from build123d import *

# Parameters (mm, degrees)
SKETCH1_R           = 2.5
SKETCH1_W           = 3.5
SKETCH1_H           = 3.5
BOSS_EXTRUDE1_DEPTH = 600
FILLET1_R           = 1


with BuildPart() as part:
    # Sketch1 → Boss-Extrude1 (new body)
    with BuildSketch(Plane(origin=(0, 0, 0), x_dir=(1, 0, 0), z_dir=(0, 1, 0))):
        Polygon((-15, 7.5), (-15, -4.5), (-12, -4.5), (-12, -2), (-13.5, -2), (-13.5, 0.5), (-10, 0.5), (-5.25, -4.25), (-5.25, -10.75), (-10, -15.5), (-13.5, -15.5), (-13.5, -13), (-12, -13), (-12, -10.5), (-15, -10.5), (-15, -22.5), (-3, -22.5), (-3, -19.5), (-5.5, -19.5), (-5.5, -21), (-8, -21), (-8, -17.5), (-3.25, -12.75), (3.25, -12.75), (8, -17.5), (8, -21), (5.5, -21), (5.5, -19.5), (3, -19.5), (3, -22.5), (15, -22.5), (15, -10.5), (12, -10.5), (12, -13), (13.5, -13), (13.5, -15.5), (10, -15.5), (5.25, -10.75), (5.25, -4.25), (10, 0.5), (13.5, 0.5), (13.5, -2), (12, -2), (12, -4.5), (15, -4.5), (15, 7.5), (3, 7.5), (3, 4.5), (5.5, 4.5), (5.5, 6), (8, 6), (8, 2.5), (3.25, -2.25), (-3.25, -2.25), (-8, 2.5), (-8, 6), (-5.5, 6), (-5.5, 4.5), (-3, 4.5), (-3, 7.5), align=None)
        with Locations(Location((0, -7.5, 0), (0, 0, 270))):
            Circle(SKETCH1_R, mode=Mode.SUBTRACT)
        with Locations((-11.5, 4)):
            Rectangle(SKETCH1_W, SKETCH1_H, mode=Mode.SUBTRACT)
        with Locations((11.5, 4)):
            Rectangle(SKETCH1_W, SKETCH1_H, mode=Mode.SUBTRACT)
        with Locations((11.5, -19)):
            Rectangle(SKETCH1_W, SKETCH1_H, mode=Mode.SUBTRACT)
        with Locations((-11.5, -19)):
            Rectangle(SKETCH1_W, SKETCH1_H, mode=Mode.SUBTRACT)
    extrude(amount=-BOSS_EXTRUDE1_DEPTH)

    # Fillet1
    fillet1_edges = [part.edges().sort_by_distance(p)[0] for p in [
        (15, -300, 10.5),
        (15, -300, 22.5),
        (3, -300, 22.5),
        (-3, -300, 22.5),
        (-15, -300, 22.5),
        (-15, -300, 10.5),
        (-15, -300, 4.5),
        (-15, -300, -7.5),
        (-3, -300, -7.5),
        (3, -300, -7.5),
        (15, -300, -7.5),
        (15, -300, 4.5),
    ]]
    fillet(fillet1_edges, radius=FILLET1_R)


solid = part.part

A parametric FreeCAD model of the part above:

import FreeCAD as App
import Part
import Sketcher
from FreeCAD import Vector


def edges_at(feature, points):
    """Names of the edges that pass closest to the given points."""
    edges = feature.Shape.Edges
    near = lambda p: min(range(len(edges)), key=lambda i: edges[i].distToShape(Part.Vertex(*p))[0])
    return sorted({f"Edge{near(p) + 1}" for p in points})

doc = App.newDocument("Part")
body = doc.addObject("PartDesign::Body", "Body")

# Sketch on XZ plane
sketch1 = body.newObject("Sketcher::SketchObject", "Sketch")
sketch1.AttachmentSupport = (doc.getObject("XZ_Plane"), [""])
sketch1.MapMode = "FlatFace"
sketch1.addGeometry([
    Part.LineSegment(Vector(-15, -7.5, 0), Vector(-15, 4.5, 0)),  # 0
    Part.LineSegment(Vector(-15, 4.5, 0), Vector(-12, 4.5, 0)),  # 1
    Part.LineSegment(Vector(-12, 4.5, 0), Vector(-12, 2, 0)),  # 2
    Part.LineSegment(Vector(-12, 2, 0), Vector(-13.5, 2, 0)),  # 3
    Part.LineSegment(Vector(-13.5, 2, 0), Vector(-13.5, -0.5, 0)),  # 4
    Part.LineSegment(Vector(-13.5, -0.5, 0), Vector(-10, -0.5, 0)),  # 5
    Part.LineSegment(Vector(-10, -0.5, 0), Vector(-5.2, 4.2, 0)),  # 6
    Part.LineSegment(Vector(-5.2, 4.2, 0), Vector(-5.2, 10.8, 0)),  # 7
    Part.LineSegment(Vector(-5.2, 10.8, 0), Vector(-10, 15.5, 0)),  # 8
    Part.LineSegment(Vector(-10, 15.5, 0), Vector(-13.5, 15.5, 0)),  # 9
    Part.LineSegment(Vector(-13.5, 15.5, 0), Vector(-13.5, 13, 0)),  # 10
    Part.LineSegment(Vector(-13.5, 13, 0), Vector(-12, 13, 0)),  # 11
    Part.LineSegment(Vector(-12, 13, 0), Vector(-12, 10.5, 0)),  # 12
    Part.LineSegment(Vector(-12, 10.5, 0), Vector(-15, 10.5, 0)),  # 13
    Part.LineSegment(Vector(-15, 10.5, 0), Vector(-15, 22.5, 0)),  # 14
    Part.LineSegment(Vector(-15, 22.5, 0), Vector(-3, 22.5, 0)),  # 15
    Part.LineSegment(Vector(-3, 22.5, 0), Vector(-3, 19.5, 0)),  # 16
    Part.LineSegment(Vector(-3, 19.5, 0), Vector(-5.5, 19.5, 0)),  # 17
    Part.LineSegment(Vector(-5.5, 19.5, 0), Vector(-5.5, 21, 0)),  # 18
    Part.LineSegment(Vector(-5.5, 21, 0), Vector(-8, 21, 0)),  # 19
    Part.LineSegment(Vector(-8, 21, 0), Vector(-8, 17.5, 0)),  # 20
    Part.LineSegment(Vector(-8, 17.5, 0), Vector(-3.2, 12.8, 0)),  # 21
    Part.LineSegment(Vector(-3.2, 12.8, 0), Vector(3.2, 12.8, 0)),  # 22
    Part.LineSegment(Vector(3.2, 12.8, 0), Vector(8, 17.5, 0)),  # 23
    Part.LineSegment(Vector(8, 17.5, 0), Vector(8, 21, 0)),  # 24
    Part.LineSegment(Vector(8, 21, 0), Vector(5.5, 21, 0)),  # 25
    Part.LineSegment(Vector(5.5, 21, 0), Vector(5.5, 19.5, 0)),  # 26
    Part.LineSegment(Vector(5.5, 19.5, 0), Vector(3, 19.5, 0)),  # 27
    Part.LineSegment(Vector(3, 19.5, 0), Vector(3, 22.5, 0)),  # 28
    Part.LineSegment(Vector(3, 22.5, 0), Vector(15, 22.5, 0)),  # 29
    Part.LineSegment(Vector(15, 22.5, 0), Vector(15, 10.5, 0)),  # 30
    Part.LineSegment(Vector(15, 10.5, 0), Vector(12, 10.5, 0)),  # 31
    Part.LineSegment(Vector(12, 10.5, 0), Vector(12, 13, 0)),  # 32
    Part.LineSegment(Vector(12, 13, 0), Vector(13.5, 13, 0)),  # 33
    Part.LineSegment(Vector(13.5, 13, 0), Vector(13.5, 15.5, 0)),  # 34
    Part.LineSegment(Vector(13.5, 15.5, 0), Vector(10, 15.5, 0)),  # 35
    Part.LineSegment(Vector(10, 15.5, 0), Vector(5.2, 10.8, 0)),  # 36
    Part.LineSegment(Vector(5.2, 10.8, 0), Vector(5.2, 4.2, 0)),  # 37
    Part.LineSegment(Vector(5.2, 4.2, 0), Vector(10, -0.5, 0)),  # 38
    Part.LineSegment(Vector(10, -0.5, 0), Vector(13.5, -0.5, 0)),  # 39
    Part.LineSegment(Vector(13.5, -0.5, 0), Vector(13.5, 2, 0)),  # 40
    Part.LineSegment(Vector(13.5, 2, 0), Vector(12, 2, 0)),  # 41
    Part.LineSegment(Vector(12, 2, 0), Vector(12, 4.5, 0)),  # 42
    Part.LineSegment(Vector(12, 4.5, 0), Vector(15, 4.5, 0)),  # 43
    Part.LineSegment(Vector(15, 4.5, 0), Vector(15, -7.5, 0)),  # 44
    Part.LineSegment(Vector(15, -7.5, 0), Vector(3, -7.5, 0)),  # 45
    Part.LineSegment(Vector(3, -7.5, 0), Vector(3, -4.5, 0)),  # 46
    Part.LineSegment(Vector(3, -4.5, 0), Vector(5.5, -4.5, 0)),  # 47
    Part.LineSegment(Vector(5.5, -4.5, 0), Vector(5.5, -6, 0)),  # 48
    Part.LineSegment(Vector(5.5, -6, 0), Vector(8, -6, 0)),  # 49
    Part.LineSegment(Vector(8, -6, 0), Vector(8, -2.5, 0)),  # 50
    Part.LineSegment(Vector(8, -2.5, 0), Vector(3.2, 2.2, 0)),  # 51
    Part.LineSegment(Vector(3.2, 2.2, 0), Vector(-3.2, 2.2, 0)),  # 52
    Part.LineSegment(Vector(-3.2, 2.2, 0), Vector(-8, -2.5, 0)),  # 53
    Part.LineSegment(Vector(-8, -2.5, 0), Vector(-8, -6, 0)),  # 54
    Part.LineSegment(Vector(-8, -6, 0), Vector(-5.5, -6, 0)),  # 55
    Part.LineSegment(Vector(-5.5, -6, 0), Vector(-5.5, -4.5, 0)),  # 56
    Part.LineSegment(Vector(-5.5, -4.5, 0), Vector(-3, -4.5, 0)),  # 57
    Part.LineSegment(Vector(-3, -4.5, 0), Vector(-3, -7.5, 0)),  # 58
    Part.LineSegment(Vector(-3, -7.5, 0), Vector(-15, -7.5, 0)),  # 59
    Part.LineSegment(Vector(-9.8, 20.8, 0), Vector(-13.2, 20.8, 0)),  # 60
    Part.LineSegment(Vector(-13.2, 20.8, 0), Vector(-13.2, 17.2, 0)),  # 61
    Part.LineSegment(Vector(-13.2, 17.2, 0), Vector(-9.8, 17.2, 0)),  # 62
    Part.LineSegment(Vector(-9.8, 17.2, 0), Vector(-9.8, 20.8, 0)),  # 63
    Part.LineSegment(Vector(13.2, 20.8, 0), Vector(9.8, 20.8, 0)),  # 64
    Part.LineSegment(Vector(9.8, 20.8, 0), Vector(9.8, 17.2, 0)),  # 65
    Part.LineSegment(Vector(9.8, 17.2, 0), Vector(13.2, 17.2, 0)),  # 66
    Part.LineSegment(Vector(13.2, 17.2, 0), Vector(13.2, 20.8, 0)),  # 67
    Part.LineSegment(Vector(-9.8, -2.2, 0), Vector(-13.2, -2.2, 0)),  # 68
    Part.LineSegment(Vector(-13.2, -2.2, 0), Vector(-13.2, -5.8, 0)),  # 69
    Part.LineSegment(Vector(-13.2, -5.8, 0), Vector(-9.8, -5.8, 0)),  # 70
    Part.LineSegment(Vector(-9.8, -5.8, 0), Vector(-9.8, -2.2, 0)),  # 71
    Part.Circle(Vector(0, 7.5, 0), Vector(0, 0, 1), 2.5),  # 72
    Part.LineSegment(Vector(13.2, -2.2, 0), Vector(9.8, -2.2, 0)),  # 73
    Part.LineSegment(Vector(9.8, -2.2, 0), Vector(9.8, -5.8, 0)),  # 74
    Part.LineSegment(Vector(9.8, -5.8, 0), Vector(13.2, -5.8, 0)),  # 75
    Part.LineSegment(Vector(13.2, -5.8, 0), Vector(13.2, -2.2, 0)),  # 76
], False)
sketch1.addConstraint([
    Sketcher.Constraint("Coincident", 0, 2, 1, 1),
    Sketcher.Constraint("Coincident", 1, 2, 2, 1),
    Sketcher.Constraint("Coincident", 2, 2, 3, 1),
    Sketcher.Constraint("Coincident", 3, 2, 4, 1),
    Sketcher.Constraint("Coincident", 4, 2, 5, 1),
    Sketcher.Constraint("Coincident", 5, 2, 6, 1),
    Sketcher.Constraint("Coincident", 6, 2, 7, 1),
    Sketcher.Constraint("Coincident", 7, 2, 8, 1),
    Sketcher.Constraint("Coincident", 8, 2, 9, 1),
    Sketcher.Constraint("Coincident", 9, 2, 10, 1),
    Sketcher.Constraint("Coincident", 10, 2, 11, 1),
    Sketcher.Constraint("Coincident", 11, 2, 12, 1),
    Sketcher.Constraint("Coincident", 12, 2, 13, 1),
    Sketcher.Constraint("Coincident", 13, 2, 14, 1),
    Sketcher.Constraint("Coincident", 14, 2, 15, 1),
    Sketcher.Constraint("Coincident", 15, 2, 16, 1),
    Sketcher.Constraint("Coincident", 16, 2, 17, 1),
    Sketcher.Constraint("Coincident", 17, 2, 18, 1),
    Sketcher.Constraint("Coincident", 18, 2, 19, 1),
    Sketcher.Constraint("Coincident", 19, 2, 20, 1),
    Sketcher.Constraint("Coincident", 20, 2, 21, 1),
    Sketcher.Constraint("Coincident", 21, 2, 22, 1),
    Sketcher.Constraint("Coincident", 22, 2, 23, 1),
    Sketcher.Constraint("Coincident", 23, 2, 24, 1),
    Sketcher.Constraint("Coincident", 24, 2, 25, 1),
    Sketcher.Constraint("Coincident", 25, 2, 26, 1),
    Sketcher.Constraint("Coincident", 26, 2, 27, 1),
    Sketcher.Constraint("Coincident", 27, 2, 28, 1),
    Sketcher.Constraint("Coincident", 28, 2, 29, 1),
    Sketcher.Constraint("Coincident", 29, 2, 30, 1),
    Sketcher.Constraint("Coincident", 30, 2, 31, 1),
    Sketcher.Constraint("Coincident", 31, 2, 32, 1),
    Sketcher.Constraint("Coincident", 32, 2, 33, 1),
    Sketcher.Constraint("Coincident", 33, 2, 34, 1),
    Sketcher.Constraint("Coincident", 34, 2, 35, 1),
    Sketcher.Constraint("Coincident", 35, 2, 36, 1),
    Sketcher.Constraint("Coincident", 36, 2, 37, 1),
    Sketcher.Constraint("Coincident", 37, 2, 38, 1),
    Sketcher.Constraint("Coincident", 38, 2, 39, 1),
    Sketcher.Constraint("Coincident", 39, 2, 40, 1),
    Sketcher.Constraint("Coincident", 40, 2, 41, 1),
    Sketcher.Constraint("Coincident", 41, 2, 42, 1),
    Sketcher.Constraint("Coincident", 42, 2, 43, 1),
    Sketcher.Constraint("Coincident", 43, 2, 44, 1),
    Sketcher.Constraint("Coincident", 44, 2, 45, 1),
    Sketcher.Constraint("Coincident", 45, 2, 46, 1),
    Sketcher.Constraint("Coincident", 46, 2, 47, 1),
    Sketcher.Constraint("Coincident", 47, 2, 48, 1),
    Sketcher.Constraint("Coincident", 48, 2, 49, 1),
    Sketcher.Constraint("Coincident", 49, 2, 50, 1),
    Sketcher.Constraint("Coincident", 50, 2, 51, 1),
    Sketcher.Constraint("Coincident", 51, 2, 52, 1),
    Sketcher.Constraint("Coincident", 52, 2, 53, 1),
    Sketcher.Constraint("Coincident", 53, 2, 54, 1),
    Sketcher.Constraint("Coincident", 54, 2, 55, 1),
    Sketcher.Constraint("Coincident", 55, 2, 56, 1),
    Sketcher.Constraint("Coincident", 56, 2, 57, 1),
    Sketcher.Constraint("Coincident", 57, 2, 58, 1),
    Sketcher.Constraint("Coincident", 58, 2, 59, 1),
    Sketcher.Constraint("Coincident", 59, 2, 0, 1),
    Sketcher.Constraint("Coincident", 60, 2, 61, 1),
    Sketcher.Constraint("Coincident", 61, 2, 62, 1),
    Sketcher.Constraint("Coincident", 62, 2, 63, 1),
    Sketcher.Constraint("Coincident", 63, 2, 60, 1),
    Sketcher.Constraint("Coincident", 64, 2, 65, 1),
    Sketcher.Constraint("Coincident", 65, 2, 66, 1),
    Sketcher.Constraint("Coincident", 66, 2, 67, 1),
    Sketcher.Constraint("Coincident", 67, 2, 64, 1),
    Sketcher.Constraint("Coincident", 68, 2, 69, 1),
    Sketcher.Constraint("Coincident", 69, 2, 70, 1),
    Sketcher.Constraint("Coincident", 70, 2, 71, 1),
    Sketcher.Constraint("Coincident", 71, 2, 68, 1),
    Sketcher.Constraint("Coincident", 73, 2, 74, 1),
    Sketcher.Constraint("Coincident", 74, 2, 75, 1),
    Sketcher.Constraint("Coincident", 75, 2, 76, 1),
    Sketcher.Constraint("Coincident", 76, 2, 73, 1),
    Sketcher.Constraint("Vertical", 0),
    Sketcher.Constraint("Horizontal", 1),
    Sketcher.Constraint("Vertical", 2),
    Sketcher.Constraint("Horizontal", 3),
    Sketcher.Constraint("Vertical", 4),
    Sketcher.Constraint("Horizontal", 5),
    Sketcher.Constraint("Vertical", 7),
    Sketcher.Constraint("Horizontal", 9),
    Sketcher.Constraint("Vertical", 10),
    Sketcher.Constraint("Horizontal", 11),
    Sketcher.Constraint("Vertical", 12),
    Sketcher.Constraint("Horizontal", 13),
    Sketcher.Constraint("Vertical", 14),
    Sketcher.Constraint("Horizontal", 15),
    Sketcher.Constraint("Vertical", 16),
    Sketcher.Constraint("Horizontal", 17),
    Sketcher.Constraint("Vertical", 18),
    Sketcher.Constraint("Horizontal", 19),
    Sketcher.Constraint("Vertical", 20),
    Sketcher.Constraint("Horizontal", 22),
    Sketcher.Constraint("Vertical", 24),
    Sketcher.Constraint("Horizontal", 25),
    Sketcher.Constraint("Vertical", 26),
    Sketcher.Constraint("Horizontal", 27),
    Sketcher.Constraint("Vertical", 28),
    Sketcher.Constraint("Horizontal", 29),
    Sketcher.Constraint("Vertical", 30),
    Sketcher.Constraint("Horizontal", 31),
    Sketcher.Constraint("Vertical", 32),
    Sketcher.Constraint("Horizontal", 33),
    Sketcher.Constraint("Vertical", 34),
    Sketcher.Constraint("Horizontal", 35),
    Sketcher.Constraint("Vertical", 37),
    Sketcher.Constraint("Horizontal", 39),
    Sketcher.Constraint("Vertical", 40),
    Sketcher.Constraint("Horizontal", 41),
    Sketcher.Constraint("Vertical", 42),
    Sketcher.Constraint("Horizontal", 43),
    Sketcher.Constraint("Vertical", 44),
    Sketcher.Constraint("Horizontal", 45),
    Sketcher.Constraint("Vertical", 46),
    Sketcher.Constraint("Horizontal", 47),
    Sketcher.Constraint("Vertical", 48),
    Sketcher.Constraint("Horizontal", 49),
    Sketcher.Constraint("Vertical", 50),
    Sketcher.Constraint("Horizontal", 52),
    Sketcher.Constraint("Vertical", 54),
    Sketcher.Constraint("Horizontal", 55),
    Sketcher.Constraint("Vertical", 56),
    Sketcher.Constraint("Horizontal", 57),
    Sketcher.Constraint("Vertical", 58),
    Sketcher.Constraint("Horizontal", 59),
    Sketcher.Constraint("Horizontal", 60),
    Sketcher.Constraint("Vertical", 61),
    Sketcher.Constraint("Horizontal", 62),
    Sketcher.Constraint("Vertical", 63),
    Sketcher.Constraint("Horizontal", 64),
    Sketcher.Constraint("Vertical", 65),
    Sketcher.Constraint("Horizontal", 66),
    Sketcher.Constraint("Vertical", 67),
    Sketcher.Constraint("Horizontal", 68),
    Sketcher.Constraint("Vertical", 69),
    Sketcher.Constraint("Horizontal", 70),
    Sketcher.Constraint("Vertical", 71),
    Sketcher.Constraint("Horizontal", 73),
    Sketcher.Constraint("Vertical", 74),
    Sketcher.Constraint("Horizontal", 75),
    Sketcher.Constraint("Vertical", 76),
    Sketcher.Constraint("Symmetric", 20, 2, 23, 2, -2),
    Sketcher.Constraint("Symmetric", 18, 2, 25, 2, -2),
    Sketcher.Constraint("Symmetric", 16, 2, 27, 2, -2),
    Sketcher.Constraint("Symmetric", 14, 2, 29, 2, -2),
    Sketcher.Constraint("Symmetric", 12, 2, 31, 2, -2),
    Sketcher.Constraint("Symmetric", 10, 2, 33, 2, -2),
    Sketcher.Constraint("Symmetric", 8, 2, 35, 2, -2),
    Sketcher.Constraint("Symmetric", 7, 2, 36, 2, -2),
    Sketcher.Constraint("Symmetric", 5, 2, 38, 2, -2),
    Sketcher.Constraint("Symmetric", 3, 2, 40, 2, -2),
    Sketcher.Constraint("Symmetric", 1, 2, 42, 2, -2),
    Sketcher.Constraint("Symmetric", 50, 2, 53, 2, -2),
    Sketcher.Constraint("Symmetric", 48, 2, 55, 2, -2),
    Sketcher.Constraint("Symmetric", 46, 2, 57, 2, -2),
    Sketcher.Constraint("Symmetric", 44, 2, 59, 2, -2),
    Sketcher.Constraint("Symmetric", 63, 2, 64, 2, -2),
    Sketcher.Constraint("Symmetric", 61, 2, 66, 2, -2),
    Sketcher.Constraint("Symmetric", 71, 2, 73, 2, -2),
    Sketcher.Constraint("Symmetric", 69, 2, 75, 2, -2),
    Sketcher.Constraint("PointOnObject", 72, 3, -2),
    Sketcher.Constraint("Perpendicular", 6, 8),
    Sketcher.Constraint("Parallel", 8, 21),
    Sketcher.Constraint("Perpendicular", 21, 23),
    Sketcher.Constraint("Parallel", 23, 36),
    Sketcher.Constraint("Perpendicular", 36, 38),
    Sketcher.Constraint("Parallel", 38, 51),
    Sketcher.Constraint("Perpendicular", 51, 53),
    Sketcher.Constraint("Vertical", 5, 2, 8, 2),
    Sketcher.Constraint("Vertical", 4, 2, 9, 2),
    Sketcher.Constraint("Vertical", 2, 2, 11, 2),
    Sketcher.Constraint("Vertical", 0, 2, 13, 2),
    Sketcher.Constraint("Vertical", 28, 2, 45, 2),
    Sketcher.Constraint("Vertical", 26, 2, 47, 2),
    Sketcher.Constraint("Vertical", 24, 2, 49, 2),
    Sketcher.Constraint("Vertical", 22, 2, 51, 2),
    Sketcher.Constraint("Vertical", 61, 2, 68, 2),
    Sketcher.Constraint("Vertical", 63, 2, 70, 2),
    Sketcher.Constraint("Equal", 17, 19),
    Sketcher.Constraint("Equal", 39, 60),
    Sketcher.Constraint("Equal", 59, 0),
    Sketcher.Constraint("Equal", 57, 2),
    Sketcher.Constraint("Equal", 2, 4),
    Sketcher.Constraint("Equal", 52, 7),
    Sketcher.Constraint("Equal", 4, 10),
    Sketcher.Constraint("Equal", 10, 12),
    Sketcher.Constraint("Equal", 0, 14),
    Sketcher.Constraint("Equal", 43, 16),
    Sketcher.Constraint("Equal", 41, 18),
    Sketcher.Constraint("Equal", 75, 20),
    Sketcher.Constraint("Equal", 28, 46),
    Sketcher.Constraint("Equal", 26, 48),
    Sketcher.Constraint("Equal", 24, 50),
    Sketcher.Constraint("Equal", 54, 61),
    Sketcher.Constraint("Equal", 67, 69),
    Sketcher.Constraint("Equal", 8, 21),
    Sketcher.Constraint("Diameter", 72, 5.0),
    Sketcher.Constraint("DistanceX", 1, 1, 1, 2, 3.0),
    Sketcher.Constraint("DistanceX", 15, 1, 15, 2, 12.0),
    Sketcher.Constraint("DistanceX", 3, 2, 3, 1, 1.5),
    Sketcher.Constraint("DistanceX", 5, 1, 5, 2, 3.5),
    Sketcher.Constraint("DistanceX", 17, 2, 17, 1, 2.5),
    Sketcher.Constraint("DistanceX", 22, 1, 22, 2, 6.5),
    Sketcher.Constraint("DistanceX", 0, 2, -1, 1, 15.0),
    Sketcher.Constraint("DistanceY", -1, 1, 2, 2, 2.0),
    Sketcher.Constraint("DistanceY", -1, 1, 72, 3, 7.5),
    Sketcher.Constraint("DistanceX", 60, 2, -1, 1, 13.25),
    Sketcher.Constraint("DistanceY", -1, 1, 60, 2, 20.75),
    Sketcher.Constraint("DistanceY", 68, 2, -1, 1, 2.25),
])
pad1 = body.newObject("PartDesign::Pad", "Pad")
pad1.Profile = sketch1
pad1.Length = 600
doc.recompute()

fillet = body.newObject("PartDesign::Fillet", "Fillet")
fillet.Base = (pad1, edges_at(pad1, [
    (15, -300, 10.5),
    (15, -300, 22.5),
    (3, -300, 22.5),
    (-3, -300, 22.5),
    (-15, -300, 22.5),
    (-15, -300, 10.5),
    (-15, -300, 4.5),
    (-15, -300, -7.5),
    (-3, -300, -7.5),
    (3, -300, -7.5),
    (15, -300, -7.5),
    (15, -300, 4.5),
]))
fillet.Radius = 1

doc.recompute()
